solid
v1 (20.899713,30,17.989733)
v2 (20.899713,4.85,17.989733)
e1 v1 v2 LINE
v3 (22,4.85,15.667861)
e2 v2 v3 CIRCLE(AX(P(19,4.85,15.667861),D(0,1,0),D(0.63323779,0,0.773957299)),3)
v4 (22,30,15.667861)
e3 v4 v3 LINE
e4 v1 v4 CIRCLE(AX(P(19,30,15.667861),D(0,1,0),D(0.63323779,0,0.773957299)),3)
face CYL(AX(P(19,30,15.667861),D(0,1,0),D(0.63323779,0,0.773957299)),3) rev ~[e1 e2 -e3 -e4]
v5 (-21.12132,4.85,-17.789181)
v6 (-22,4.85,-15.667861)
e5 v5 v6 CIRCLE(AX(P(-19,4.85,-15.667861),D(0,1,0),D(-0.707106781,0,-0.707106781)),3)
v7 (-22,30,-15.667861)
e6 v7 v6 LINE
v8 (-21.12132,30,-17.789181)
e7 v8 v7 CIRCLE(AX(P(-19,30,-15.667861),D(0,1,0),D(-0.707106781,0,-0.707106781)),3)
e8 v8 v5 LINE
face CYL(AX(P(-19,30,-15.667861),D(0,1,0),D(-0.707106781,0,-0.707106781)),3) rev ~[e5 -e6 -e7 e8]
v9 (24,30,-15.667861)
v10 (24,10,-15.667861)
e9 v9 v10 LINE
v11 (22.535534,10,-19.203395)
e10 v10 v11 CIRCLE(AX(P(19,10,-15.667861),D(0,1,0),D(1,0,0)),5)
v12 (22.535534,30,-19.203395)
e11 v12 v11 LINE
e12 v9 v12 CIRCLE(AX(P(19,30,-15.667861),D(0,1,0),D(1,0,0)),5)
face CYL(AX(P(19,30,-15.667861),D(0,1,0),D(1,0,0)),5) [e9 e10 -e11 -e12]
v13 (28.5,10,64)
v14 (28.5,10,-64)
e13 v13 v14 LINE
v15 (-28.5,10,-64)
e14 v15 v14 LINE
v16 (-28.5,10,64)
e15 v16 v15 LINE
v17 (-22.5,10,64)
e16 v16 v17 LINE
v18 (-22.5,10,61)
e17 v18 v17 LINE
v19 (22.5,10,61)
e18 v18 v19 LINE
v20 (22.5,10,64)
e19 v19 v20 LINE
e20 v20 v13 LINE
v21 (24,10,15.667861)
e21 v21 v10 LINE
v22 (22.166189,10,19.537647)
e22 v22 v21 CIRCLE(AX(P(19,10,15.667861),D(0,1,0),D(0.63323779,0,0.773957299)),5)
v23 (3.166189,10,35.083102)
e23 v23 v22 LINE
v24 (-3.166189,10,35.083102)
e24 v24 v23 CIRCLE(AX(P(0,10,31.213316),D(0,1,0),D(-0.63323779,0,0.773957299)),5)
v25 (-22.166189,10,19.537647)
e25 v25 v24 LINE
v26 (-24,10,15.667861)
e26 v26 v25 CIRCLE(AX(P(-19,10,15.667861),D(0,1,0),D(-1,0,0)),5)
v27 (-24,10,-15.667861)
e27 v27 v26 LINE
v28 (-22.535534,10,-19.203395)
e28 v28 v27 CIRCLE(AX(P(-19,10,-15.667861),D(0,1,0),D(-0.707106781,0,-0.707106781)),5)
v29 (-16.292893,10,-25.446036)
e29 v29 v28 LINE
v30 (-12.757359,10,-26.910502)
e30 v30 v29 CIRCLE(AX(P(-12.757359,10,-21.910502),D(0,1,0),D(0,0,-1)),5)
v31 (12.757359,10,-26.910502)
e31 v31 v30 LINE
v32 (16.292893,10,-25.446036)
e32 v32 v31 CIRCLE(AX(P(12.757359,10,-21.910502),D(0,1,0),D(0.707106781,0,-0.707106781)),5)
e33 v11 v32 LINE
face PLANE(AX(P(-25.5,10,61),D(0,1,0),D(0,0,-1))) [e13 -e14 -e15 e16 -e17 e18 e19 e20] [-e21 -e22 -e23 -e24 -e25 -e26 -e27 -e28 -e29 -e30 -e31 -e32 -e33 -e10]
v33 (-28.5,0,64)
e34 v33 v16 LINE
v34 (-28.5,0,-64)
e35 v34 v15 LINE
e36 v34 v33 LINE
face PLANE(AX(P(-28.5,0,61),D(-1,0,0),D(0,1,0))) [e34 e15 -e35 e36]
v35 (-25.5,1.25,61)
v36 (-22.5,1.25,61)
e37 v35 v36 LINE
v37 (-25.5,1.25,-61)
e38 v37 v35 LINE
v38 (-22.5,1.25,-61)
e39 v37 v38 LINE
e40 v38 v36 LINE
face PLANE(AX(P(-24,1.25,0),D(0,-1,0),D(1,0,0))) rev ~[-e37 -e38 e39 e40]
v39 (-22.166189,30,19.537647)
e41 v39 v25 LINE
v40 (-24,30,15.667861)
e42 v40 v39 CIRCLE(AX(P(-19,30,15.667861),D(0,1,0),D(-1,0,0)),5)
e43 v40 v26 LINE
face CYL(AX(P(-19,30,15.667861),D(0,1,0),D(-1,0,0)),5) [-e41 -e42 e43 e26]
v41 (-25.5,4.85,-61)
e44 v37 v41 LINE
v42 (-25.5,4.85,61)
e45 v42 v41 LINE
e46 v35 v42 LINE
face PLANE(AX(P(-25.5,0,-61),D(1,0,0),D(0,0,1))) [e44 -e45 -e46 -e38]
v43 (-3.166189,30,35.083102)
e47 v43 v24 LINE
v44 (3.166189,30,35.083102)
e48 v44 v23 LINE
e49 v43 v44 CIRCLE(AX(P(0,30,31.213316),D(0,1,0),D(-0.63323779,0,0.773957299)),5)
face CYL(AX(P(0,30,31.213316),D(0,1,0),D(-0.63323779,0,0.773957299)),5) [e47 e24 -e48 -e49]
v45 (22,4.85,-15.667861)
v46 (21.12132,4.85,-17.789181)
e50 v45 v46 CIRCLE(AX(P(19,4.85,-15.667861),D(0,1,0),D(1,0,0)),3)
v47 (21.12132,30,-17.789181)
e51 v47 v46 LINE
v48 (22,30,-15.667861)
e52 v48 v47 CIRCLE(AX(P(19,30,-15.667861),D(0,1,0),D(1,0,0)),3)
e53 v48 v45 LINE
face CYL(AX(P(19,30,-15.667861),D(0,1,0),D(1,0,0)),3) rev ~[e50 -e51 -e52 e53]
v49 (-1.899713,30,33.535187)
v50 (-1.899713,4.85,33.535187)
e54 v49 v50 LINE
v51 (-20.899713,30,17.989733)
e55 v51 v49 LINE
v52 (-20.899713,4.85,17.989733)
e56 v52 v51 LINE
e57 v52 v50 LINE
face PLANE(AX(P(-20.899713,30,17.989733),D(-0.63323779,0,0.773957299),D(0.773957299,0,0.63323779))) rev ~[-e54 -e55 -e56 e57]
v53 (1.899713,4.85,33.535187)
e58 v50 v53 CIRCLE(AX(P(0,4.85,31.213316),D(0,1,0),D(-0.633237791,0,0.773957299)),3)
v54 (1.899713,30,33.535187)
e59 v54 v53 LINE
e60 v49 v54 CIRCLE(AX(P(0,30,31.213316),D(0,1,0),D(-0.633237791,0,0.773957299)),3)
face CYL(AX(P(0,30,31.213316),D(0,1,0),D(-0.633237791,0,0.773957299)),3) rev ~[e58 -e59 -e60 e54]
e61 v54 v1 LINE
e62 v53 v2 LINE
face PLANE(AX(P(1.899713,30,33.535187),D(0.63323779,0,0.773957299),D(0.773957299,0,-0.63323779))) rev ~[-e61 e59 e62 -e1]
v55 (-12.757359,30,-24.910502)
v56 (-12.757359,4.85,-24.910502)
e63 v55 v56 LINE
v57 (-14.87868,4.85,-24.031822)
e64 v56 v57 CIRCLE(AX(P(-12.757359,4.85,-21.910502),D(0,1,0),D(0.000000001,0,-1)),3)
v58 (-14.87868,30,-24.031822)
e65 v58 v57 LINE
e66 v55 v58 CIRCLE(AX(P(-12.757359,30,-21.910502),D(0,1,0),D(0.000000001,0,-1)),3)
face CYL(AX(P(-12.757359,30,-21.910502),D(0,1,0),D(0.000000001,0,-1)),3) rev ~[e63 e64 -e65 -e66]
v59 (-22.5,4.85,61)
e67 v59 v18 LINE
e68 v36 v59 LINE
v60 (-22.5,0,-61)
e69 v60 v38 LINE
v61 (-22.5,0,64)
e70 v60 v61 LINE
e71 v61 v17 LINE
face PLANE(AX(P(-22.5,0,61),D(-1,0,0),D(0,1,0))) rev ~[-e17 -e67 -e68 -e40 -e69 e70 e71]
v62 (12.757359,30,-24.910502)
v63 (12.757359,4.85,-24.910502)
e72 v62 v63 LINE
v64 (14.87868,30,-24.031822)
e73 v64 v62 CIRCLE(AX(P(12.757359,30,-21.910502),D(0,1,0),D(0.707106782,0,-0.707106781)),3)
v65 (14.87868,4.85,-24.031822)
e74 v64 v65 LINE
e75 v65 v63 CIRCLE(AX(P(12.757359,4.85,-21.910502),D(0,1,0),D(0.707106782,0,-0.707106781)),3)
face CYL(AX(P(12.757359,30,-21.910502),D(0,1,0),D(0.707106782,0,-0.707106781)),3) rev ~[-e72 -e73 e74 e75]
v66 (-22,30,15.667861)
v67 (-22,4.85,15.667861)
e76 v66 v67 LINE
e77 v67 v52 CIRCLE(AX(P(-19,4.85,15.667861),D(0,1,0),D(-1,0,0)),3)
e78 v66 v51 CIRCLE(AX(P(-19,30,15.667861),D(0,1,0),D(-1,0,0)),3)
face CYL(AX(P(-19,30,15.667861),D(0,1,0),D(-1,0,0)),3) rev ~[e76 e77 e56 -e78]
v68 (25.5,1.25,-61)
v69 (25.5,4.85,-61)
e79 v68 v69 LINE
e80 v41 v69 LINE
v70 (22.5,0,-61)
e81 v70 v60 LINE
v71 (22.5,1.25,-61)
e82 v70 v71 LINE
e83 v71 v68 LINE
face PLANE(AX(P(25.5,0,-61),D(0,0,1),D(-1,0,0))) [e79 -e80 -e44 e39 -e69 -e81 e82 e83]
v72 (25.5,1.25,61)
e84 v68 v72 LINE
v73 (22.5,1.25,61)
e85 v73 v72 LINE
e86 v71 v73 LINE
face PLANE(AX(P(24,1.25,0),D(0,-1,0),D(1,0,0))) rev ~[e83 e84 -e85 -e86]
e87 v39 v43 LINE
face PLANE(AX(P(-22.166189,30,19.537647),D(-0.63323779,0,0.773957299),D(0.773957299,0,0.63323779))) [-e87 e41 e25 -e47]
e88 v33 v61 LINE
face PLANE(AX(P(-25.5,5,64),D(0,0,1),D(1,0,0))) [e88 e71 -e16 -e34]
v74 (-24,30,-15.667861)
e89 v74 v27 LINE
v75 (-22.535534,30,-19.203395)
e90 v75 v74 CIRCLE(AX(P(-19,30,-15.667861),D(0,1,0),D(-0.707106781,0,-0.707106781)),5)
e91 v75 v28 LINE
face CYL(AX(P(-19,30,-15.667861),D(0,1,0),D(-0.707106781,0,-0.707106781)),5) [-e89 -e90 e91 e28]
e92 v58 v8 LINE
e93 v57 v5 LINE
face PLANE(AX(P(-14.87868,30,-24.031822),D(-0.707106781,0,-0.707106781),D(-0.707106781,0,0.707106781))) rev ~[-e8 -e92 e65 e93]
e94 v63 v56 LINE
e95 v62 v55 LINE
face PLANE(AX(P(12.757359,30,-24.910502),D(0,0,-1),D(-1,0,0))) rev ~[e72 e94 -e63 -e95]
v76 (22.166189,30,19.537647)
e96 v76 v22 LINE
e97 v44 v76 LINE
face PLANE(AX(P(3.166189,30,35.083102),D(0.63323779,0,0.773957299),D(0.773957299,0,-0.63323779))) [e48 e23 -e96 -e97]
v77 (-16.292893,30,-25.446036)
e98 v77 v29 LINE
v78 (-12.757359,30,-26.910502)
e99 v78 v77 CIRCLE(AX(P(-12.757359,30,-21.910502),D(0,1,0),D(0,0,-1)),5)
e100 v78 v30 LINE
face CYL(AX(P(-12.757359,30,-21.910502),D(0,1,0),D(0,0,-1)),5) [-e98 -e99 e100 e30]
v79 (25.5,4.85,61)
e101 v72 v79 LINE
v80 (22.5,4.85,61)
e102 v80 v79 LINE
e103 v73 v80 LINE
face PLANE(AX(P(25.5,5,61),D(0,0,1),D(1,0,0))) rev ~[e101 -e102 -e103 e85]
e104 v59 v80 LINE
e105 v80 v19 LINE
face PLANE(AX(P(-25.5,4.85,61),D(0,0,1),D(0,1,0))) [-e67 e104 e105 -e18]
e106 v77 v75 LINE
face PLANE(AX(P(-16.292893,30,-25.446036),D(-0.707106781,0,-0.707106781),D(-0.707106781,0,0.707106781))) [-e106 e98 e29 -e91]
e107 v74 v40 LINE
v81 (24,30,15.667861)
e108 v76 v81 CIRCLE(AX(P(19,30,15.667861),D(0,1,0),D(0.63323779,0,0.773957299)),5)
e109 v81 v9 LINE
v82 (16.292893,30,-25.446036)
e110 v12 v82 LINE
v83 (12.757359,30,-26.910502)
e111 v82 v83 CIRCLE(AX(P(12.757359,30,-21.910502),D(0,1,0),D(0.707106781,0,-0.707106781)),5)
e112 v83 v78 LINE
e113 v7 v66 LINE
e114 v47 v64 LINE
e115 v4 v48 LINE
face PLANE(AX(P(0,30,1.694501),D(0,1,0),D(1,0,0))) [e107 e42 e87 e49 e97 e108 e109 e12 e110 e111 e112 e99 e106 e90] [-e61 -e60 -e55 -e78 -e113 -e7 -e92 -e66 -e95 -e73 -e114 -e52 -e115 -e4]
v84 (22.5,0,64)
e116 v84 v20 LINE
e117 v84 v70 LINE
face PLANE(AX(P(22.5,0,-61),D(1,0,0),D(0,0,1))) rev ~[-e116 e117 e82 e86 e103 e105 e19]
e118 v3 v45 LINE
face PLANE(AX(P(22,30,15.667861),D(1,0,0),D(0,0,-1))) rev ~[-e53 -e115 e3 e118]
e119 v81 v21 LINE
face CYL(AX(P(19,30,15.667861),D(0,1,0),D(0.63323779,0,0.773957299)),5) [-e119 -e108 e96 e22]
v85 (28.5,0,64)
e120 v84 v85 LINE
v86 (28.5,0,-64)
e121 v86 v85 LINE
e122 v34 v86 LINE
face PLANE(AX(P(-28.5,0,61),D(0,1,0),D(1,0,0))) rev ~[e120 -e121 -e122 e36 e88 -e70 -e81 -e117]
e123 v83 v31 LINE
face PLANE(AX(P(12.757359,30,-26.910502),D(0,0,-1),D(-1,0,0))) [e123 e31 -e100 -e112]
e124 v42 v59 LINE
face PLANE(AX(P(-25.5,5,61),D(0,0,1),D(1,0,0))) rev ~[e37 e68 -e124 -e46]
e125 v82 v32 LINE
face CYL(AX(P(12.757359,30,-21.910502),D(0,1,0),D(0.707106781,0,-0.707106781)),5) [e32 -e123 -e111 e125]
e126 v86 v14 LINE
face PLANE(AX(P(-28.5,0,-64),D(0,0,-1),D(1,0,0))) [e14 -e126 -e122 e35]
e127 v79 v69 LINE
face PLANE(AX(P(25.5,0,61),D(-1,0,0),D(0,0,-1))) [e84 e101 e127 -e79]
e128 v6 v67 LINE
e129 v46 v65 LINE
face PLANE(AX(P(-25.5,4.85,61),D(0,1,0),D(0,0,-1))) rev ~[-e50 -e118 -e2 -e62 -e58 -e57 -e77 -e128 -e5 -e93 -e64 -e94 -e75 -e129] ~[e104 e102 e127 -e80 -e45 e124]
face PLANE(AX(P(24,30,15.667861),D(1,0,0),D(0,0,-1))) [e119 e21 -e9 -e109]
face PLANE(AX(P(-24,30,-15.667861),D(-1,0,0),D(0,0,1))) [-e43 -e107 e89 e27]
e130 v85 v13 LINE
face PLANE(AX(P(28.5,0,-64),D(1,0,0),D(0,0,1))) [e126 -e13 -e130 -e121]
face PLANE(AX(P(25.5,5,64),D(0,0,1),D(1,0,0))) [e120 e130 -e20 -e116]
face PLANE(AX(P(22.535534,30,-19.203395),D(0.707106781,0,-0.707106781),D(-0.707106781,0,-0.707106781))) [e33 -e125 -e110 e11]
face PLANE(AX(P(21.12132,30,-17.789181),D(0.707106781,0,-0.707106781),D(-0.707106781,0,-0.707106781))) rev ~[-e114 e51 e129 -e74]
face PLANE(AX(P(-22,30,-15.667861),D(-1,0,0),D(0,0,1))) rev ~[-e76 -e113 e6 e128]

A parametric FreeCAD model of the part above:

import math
import FreeCAD as App
import Part
import Sketcher
Q = App.Units.Quantity

doc = App.newDocument("Part")
params = doc.addObject("Spreadsheet::Sheet", "Params")
for row, (alias, value) in enumerate([
    ("sketch1_width", "57 mm"),
    ("sketch1_width2", "3 mm"),
    ("sketch1_height", "125 mm"),
    ("sketch1_height2", "122 mm"),
    ("pad1_length", "10 mm"),
    ("sketch2_width", "3 mm"),
    ("sketch2_height", "122 mm"),
    ("pad2_length", "1.25 mm"),
    ("sketch3_width", "6 mm"),
    ("sketch3_height", "10 mm"),
    ("pad3_length", "3 mm"),
    ("sketch4_height", "122 mm"),
    ("sketch4_width", "5.15 mm"),
    ("pad4_length", "52 mm"),
    ("sketch5_radius", "3 mm"),
    ("pocket1_length", "52 mm"),
    ("sketch6_radius", "5 mm"),
    ("sketch6_radius2", "3 mm"),
    ("pad5_length", "20 mm"),
], start=1):
    params.set(f"A{row}", alias)
    params.set(f"B{row}", "=" + value)
    params.setAlias(f"B{row}", alias)

body = doc.addObject("PartDesign::Body", "Body")

# Sketch on XZ plane
sketch1 = doc.addObject("Sketcher::SketchObject", "Sketch")
body.addObject(sketch1)
sketch1.AttachmentSupport = (doc.XZ_Plane, [""])
sketch1.MapMode = "FlatFace"
sketch1.addGeometry(Part.LineSegment(App.Vector(28.5, -64, 0), App.Vector(-28.5, -64, 0)), False)
sketch1.addGeometry(Part.LineSegment(App.Vector(-28.5, -64, 0), App.Vector(-28.5, 61, 0)), False)
sketch1.addGeometry(Part.LineSegment(App.Vector(-28.5, 61, 0), App.Vector(-25.5, 61, 0)), False)
sketch1.addGeometry(Part.LineSegment(App.Vector(-25.5, 61, 0), App.Vector(-25.5, -61, 0)), False)
sketch1.addGeometry(Part.LineSegment(App.Vector(-25.5, -61, 0), App.Vector(25.5, -61, 0)), False)
sketch1.addGeometry(Part.LineSegment(App.Vector(25.5, -61, 0), App.Vector(25.5, 61, 0)), False)
sketch1.addGeometry(Part.LineSegment(App.Vector(25.5, 61, 0), App.Vector(28.5, 61, 0)), False)
sketch1.addGeometry(Part.LineSegment(App.Vector(28.5, 61, 0), App.Vector(28.5, -64, 0)), False)
sketch1.addConstraint(Sketcher.Constraint("Coincident", 0, 2, 1, 1))
sketch1.addConstraint(Sketcher.Constraint("Coincident", 1, 2, 2, 1))
sketch1.addConstraint(Sketcher.Constraint("Coincident", 2, 2, 3, 1))
sketch1.addConstraint(Sketcher.Constraint("Coincident", 3, 2, 4, 1))
sketch1.addConstraint(Sketcher.Constraint("Coincident", 4, 2, 5, 1))
sketch1.addConstraint(Sketcher.Constraint("Coincident", 5, 2, 6, 1))
sketch1.addConstraint(Sketcher.Constraint("Coincident", 6, 2, 7, 1))
sketch1.addConstraint(Sketcher.Constraint("Coincident", 7, 2, 0, 1))
sketch1.addConstraint(Sketcher.Constraint("Horizontal", 0))
sketch1.addConstraint(Sketcher.Constraint("Vertical", 1))
sketch1.addConstraint(Sketcher.Constraint("Horizontal", 2))
sketch1.addConstraint(Sketcher.Constraint("Vertical", 3))
sketch1.addConstraint(Sketcher.Constraint("Horizontal", 4))
sketch1.addConstraint(Sketcher.Constraint("Vertical", 5))
sketch1.addConstraint(Sketcher.Constraint("Horizontal", 6))
sketch1.addConstraint(Sketcher.Constraint("Vertical", 7))
sketch1.addConstraint(Sketcher.Constraint("Symmetric", 2, 2, 4, 2, -1, 1))
sketch1.addConstraint(Sketcher.Constraint("Symmetric", 1, 2, 6, 2, -2))
sketch1.addConstraint(Sketcher.Constraint("DistanceX", 0, 2, 0, 1, Q("57 mm")))
sketch1.addConstraint(Sketcher.Constraint("DistanceX", 2, 1, 2, 2, Q("3 mm")))
sketch1.addConstraint(Sketcher.Constraint("DistanceY", 1, 1, 1, 2, Q("125 mm")))
sketch1.addConstraint(Sketcher.Constraint("DistanceY", 3, 2, 3, 1, Q("122 mm")))
sketch1.setExpression("Constraints[18]", "Params.sketch1_width")
sketch1.setExpression("Constraints[19]", "Params.sketch1_width2")
sketch1.setExpression("Constraints[20]", "Params.sketch1_height")
sketch1.setExpression("Constraints[21]", "Params.sketch1_height2")
pad1 = doc.addObject("PartDesign::Pad", "Pad")
body.addObject(pad1)
pad1.Profile = sketch1
pad1.setExpression("Length", "Params.pad1_length")
pad1.Reversed = True

# Sketch on XZ plane
sketch2 = doc.addObject("Sketcher::SketchObject", "Sketch001")
body.addObject(sketch2)
sketch2.AttachmentSupport = (doc.XZ_Plane, [""])
sketch2.MapMode = "FlatFace"
sketch2.addGeometry(Part.LineSegment(App.Vector(-25.5, 61, 0), App.Vector(-25.5, -61, 0)), False)
sketch2.addGeometry(Part.LineSegment(App.Vector(-25.5, -61, 0), App.Vector(-22.5, -61, 0)), False)
sketch2.addGeometry(Part.LineSegment(App.Vector(-22.5, -61, 0), App.Vector(-22.5, 61, 0)), False)
sketch2.addGeometry(Part.LineSegment(App.Vector(-22.5, 61, 0), App.Vector(-25.5, 61, 0)), False)
sketch2.addGeometry(Part.LineSegment(App.Vector(22.5, 61, 0), App.Vector(22.5, -61, 0)), False)
sketch2.addGeometry(Part.LineSegment(App.Vector(22.5, -61, 0), App.Vector(25.5, -61, 0)), False)
sketch2.addGeometry(Part.LineSegment(App.Vector(25.5, -61, 0), App.Vector(25.5, 61, 0)), False)
sketch2.addGeometry(Part.LineSegment(App.Vector(25.5, 61, 0), App.Vector(22.5, 61, 0)), False)
sketch2.addConstraint(Sketcher.Constraint("Coincident", 0, 2, 1, 1))
sketch2.addConstraint(Sketcher.Constraint("Coincident", 1, 2, 2, 1))
sketch2.addConstraint(Sketcher.Constraint("Coincident", 2, 2, 3, 1))
sketch2.addConstraint(Sketcher.Constraint("Coincident", 3, 2, 0, 1))
sketch2.addConstraint(Sketcher.Constraint("Coincident", 4, 2, 5, 1))
sketch2.addConstraint(Sketcher.Constraint("Coincident", 5, 2, 6, 1))
sketch2.addConstraint(Sketcher.Constraint("Coincident", 6, 2, 7, 1))
sketch2.addConstraint(Sketcher.Constraint("Coincident", 7, 2, 4, 1))
sketch2.addConstraint(Sketcher.Constraint("Vertical", 0))
sketch2.addConstraint(Sketcher.Constraint("Horizontal", 1))
sketch2.addConstraint(Sketcher.Constraint("Vertical", 2))
sketch2.addConstraint(Sketcher.Constraint("Horizontal", 3))
sketch2.addConstraint(Sketcher.Constraint("Vertical", 4))
sketch2.addConstraint(Sketcher.Constraint("Horizontal", 5))
sketch2.addConstraint(Sketcher.Constraint("Vertical", 6))
sketch2.addConstraint(Sketcher.Constraint("Horizontal", 7))
sketch2.addConstraint(Sketcher.Constraint("Symmetric", 2, 2, 4, 2, -1, 1))
sketch2.addConstraint(Sketcher.Constraint("Symmetric", 0, 2, 6, 2, -1, 1))
sketch2.addConstraint(Sketcher.Constraint("Horizontal", 1, 2, 4, 2))
sketch2.addConstraint(Sketcher.Constraint("DistanceX", 1, 1, 1, 2, Q("3 mm")))
sketch2.addConstraint(Sketcher.Constraint("DistanceY", 0, 2, 0, 1, Q("122 mm")))
sketch2.addConstraint(Sketcher.Constraint("DistanceX", 1, 2, 4, 2, Q("45 mm")))
sketch2.setExpression("Constraints[19]", "Params.sketch2_width")
sketch2.setExpression("Constraints[20]", "Params.sketch2_height")
pad2 = doc.addObject("PartDesign::Pad", "Pad001")
body.addObject(pad2)
pad2.Profile = sketch2
pad2.setExpression("Length", "Params.pad2_length")
pad2.Reversed = True

# Sketch on XY plane
sketch3 = doc.addObject("Sketcher::SketchObject", "Sketch002")
body.addObject(sketch3)
sketch3.AttachmentSupport = (doc.XY_Plane, [""])
sketch3.MapMode = "FlatFace"
sketch3.AttachmentOffset = App.Placement(App.Vector(0, 0, 61), App.Rotation())
sketch3.addGeometry(Part.LineSegment(App.Vector(-28, 10, 0), App.Vector(-28, 0, 0)), False)
sketch3.addGeometry(Part.LineSegment(App.Vector(-28, 0, 0), App.Vector(-22, 0, 0)), False)
sketch3.addGeometry(Part.LineSegment(App.Vector(-22, 0, 0), App.Vector(-22, 10, 0)), False)
sketch3.addGeometry(Part.LineSegment(App.Vector(-22, 10, 0), App.Vector(-28, 10, 0)), False)
sketch3.addGeometry(Part.LineSegment(App.Vector(22, 10, 0), App.Vector(22, 0, 0)), False)
sketch3.addGeometry(Part.LineSegment(App.Vector(22, 0, 0), App.Vector(28, 0, 0)), False)
sketch3.addGeometry(Part.LineSegment(App.Vector(28, 0, 0), App.Vector(28, 10, 0)), False)
sketch3.addGeometry(Part.LineSegment(App.Vector(28, 10, 0), App.Vector(22, 10, 0)), False)
sketch3.addConstraint(Sketcher.Constraint("Coincident", 0, 2, 1, 1))
sketch3.addConstraint(Sketcher.Constraint("Coincident", 1, 2, 2, 1))
sketch3.addConstraint(Sketcher.Constraint("Coincident", 2, 2, 3, 1))
sketch3.addConstraint(Sketcher.Constraint("Coincident", 3, 2, 0, 1))
sketch3.addConstraint(Sketcher.Constraint("Coincident", 4, 2, 5, 1))
sketch3.addConstraint(Sketcher.Constraint("Coincident", 5, 2, 6, 1))
sketch3.addConstraint(Sketcher.Constraint("Coincident", 6, 2, 7, 1))
sketch3.addConstraint(Sketcher.Constraint("Coincident", 7, 2, 4, 1))
sketch3.addConstraint(Sketcher.Constraint("Vertical", 0))
sketch3.addConstraint(Sketcher.Constraint("Horizontal", 1))
sketch3.addConstraint(Sketcher.Constraint("Vertical", 2))
sketch3.addConstraint(Sketcher.Constraint("Horizontal", 3))
sketch3.addConstraint(Sketcher.Constraint("Vertical", 4))
sketch3.addConstraint(Sketcher.Constraint("Horizontal", 5))
sketch3.addConstraint(Sketcher.Constraint("Vertical", 6))
sketch3.addConstraint(Sketcher.Constraint("Horizontal", 7))
sketch3.addConstraint(Sketcher.Constraint("Symmetric", 1, 2, 4, 2, -1, 1))
sketch3.addConstraint(Sketcher.Constraint("Symmetric", 0, 2, 5, 2, -2))
sketch3.addConstraint(Sketcher.Constraint("Horizontal", 3, 2, 6, 2))
sketch3.addConstraint(Sketcher.Constraint("DistanceX", 1, 1, 1, 2, Q("6 mm")))
sketch3.addConstraint(Sketcher.Constraint("DistanceY", 0, 2, 0, 1, Q("10 mm")))
sketch3.addConstraint(Sketcher.Constraint("DistanceX", 1, 2, 4, 2, Q("45 mm")))
sketch3.setExpression("Constraints[19]", "Params.sketch3_width")
sketch3.setExpression("Constraints[20]", "Params.sketch3_height")
pad3 = doc.addObject("PartDesign::Pad", "Pad002")
body.addObject(pad3)
pad3.Profile = sketch3
pad3.setExpression("Length", "Params.pad3_length")

# Sketch on YZ plane
sketch4 = doc.addObject("Sketcher::SketchObject", "Sketch003")
body.addObject(sketch4)
sketch4.AttachmentSupport = (doc.YZ_Plane, [""])
sketch4.MapMode = "FlatFace"
sketch4.AttachmentOffset = App.Placement(App.Vector(0, 0, -25.5), App.Rotation())
sketch4.addGeometry(Part.LineSegment(App.Vector(10, 61, 0), App.Vector(5, 61, 0)), False)
sketch4.addGeometry(Part.LineSegment(App.Vector(5, 61, 0), App.Vector(5, -61, 0)), False)
sketch4.addGeometry(Part.LineSegment(App.Vector(5, -61, 0), App.Vector(10, -61, 0)), False)
sketch4.addGeometry(Part.LineSegment(App.Vector(10, -61, 0), App.Vector(10, 61, 0)), False)
sketch4.addConstraint(Sketcher.Constraint("Coincident", 0, 2, 1, 1))
sketch4.addConstraint(Sketcher.Constraint("Coincident", 1, 2, 2, 1))
sketch4.addConstraint(Sketcher.Constraint("Coincident", 2, 2, 3, 1))
sketch4.addConstraint(Sketcher.Constraint("Coincident", 3, 2, 0, 1))
sketch4.addConstraint(Sketcher.Constraint("Horizontal", 0))
sketch4.addConstraint(Sketcher.Constraint("Vertical", 1))
sketch4.addConstraint(Sketcher.Constraint("Horizontal", 2))
sketch4.addConstraint(Sketcher.Constraint("Vertical", 3))
sketch4.addConstraint(Sketcher.Constraint("DistanceY", 1, 2, 1, 1, Q("122 mm")))
sketch4.addConstraint(Sketcher.Constraint("DistanceY", -1, 1, 0, 2, Q("61 mm")))
sketch4.addConstraint(Sketcher.Constraint("DistanceX", -1, 1, 2, 2, Q("10 mm")))
sketch4.addConstraint(Sketcher.Constraint("DistanceX", 0, 2, 0, 1, Q("5.15 mm")))
sketch4.setExpression("Constraints[8]", "Params.sketch4_height")
sketch4.setExpression("Constraints[11]", "Params.sketch4_width")
pad4 = doc.addObject("PartDesign::Pad", "Pad003")
body.addObject(pad4)
pad4.Profile = sketch4
pad4.setExpression("Length", "Params.pad4_length")

# Sketch on XZ plane
sketch5 = doc.addObject("Sketcher::SketchObject", "Sketch004")
body.addObject(sketch5)
sketch5.AttachmentSupport = (doc.XZ_Plane, [""])
sketch5.MapMode = "FlatFace"
sketch5.AttachmentOffset = App.Placement(App.Vector(0, 0, -10), App.Rotation())
sketch5.addGeometry(Part.LineSegment(App.Vector(-22, -15.7, 0), App.Vector(-22, 15.7, 0)), False)
sketch5.addGeometry(Part.ArcOfCircle(Part.Circle(App.Vector(-19, 15.7, 0), App.Vector(0, 0, 1), 3), math.radians(129), math.radians(180)), False)
sketch5.addGeometry(Part.LineSegment(App.Vector(-20.9, 18, 0), App.Vector(-1.9, 33.5, 0)), False)
sketch5.addGeometry(Part.ArcOfCircle(Part.Circle(App.Vector(0, 31.2, 0), App.Vector(0, 0, 1), 3), math.radians(51), math.radians(129)), False)
sketch5.addGeometry(Part.LineSegment(App.Vector(1.9, 33.5, 0), App.Vector(20.9, 18, 0)), False)
sketch5.addGeometry(Part.ArcOfCircle(Part.Circle(App.Vector(19, 15.7, 0), App.Vector(0, 0, 1), 3), math.radians(0), math.radians(51)), False)
sketch5.addGeometry(Part.LineSegment(App.Vector(22, 15.7, 0), App.Vector(22, -15.7, 0)), False)
sketch5.addGeometry(Part.ArcOfCircle(Part.Circle(App.Vector(19, -15.7, 0), App.Vector(0, 0, 1), 3), math.radians(-45), math.radians(0)), False)
sketch5.addGeometry(Part.LineSegment(App.Vector(21.1, -17.8, 0), App.Vector(14.9, -24, 0)), False)
sketch5.addGeometry(Part.ArcOfCircle(Part.Circle(App.Vector(12.8, -21.9, 0), App.Vector(0, 0, 1), 3), math.radians(-90), math.radians(-45)), False)
sketch5.addGeometry(Part.LineSegment(App.Vector(12.8, -24.9, 0), App.Vector(-12.8, -24.9, 0)), False)
sketch5.addGeometry(Part.ArcOfCircle(Part.Circle(App.Vector(-12.8, -21.9, 0), App.Vector(0, 0, 1), 3), math.radians(-135), math.radians(-90)), False)
sketch5.addGeometry(Part.LineSegment(App.Vector(-14.9, -24, 0), App.Vector(-21.1, -17.8, 0)), False)
sketch5.addGeometry(Part.ArcOfCircle(Part.Circle(App.Vector(-19, -15.7, 0), App.Vector(0, 0, 1), 3), math.radians(180), math.radians(225)), False)
sketch5.addConstraint(Sketcher.Constraint("Tangent", 0, 2, 1, 2))
sketch5.addConstraint(Sketcher.Constraint("Tangent", 1, 1, 2, 1))
sketch5.addConstraint(Sketcher.Constraint("Tangent", 2, 2, 3, 2))
sketch5.addConstraint(Sketcher.Constraint("Tangent", 3, 1, 4, 1))
sketch5.addConstraint(Sketcher.Constraint("Tangent", 4, 2, 5, 2))
sketch5.addConstraint(Sketcher.Constraint("Tangent", 5, 1, 6, 1))
sketch5.addConstraint(Sketcher.Constraint("Tangent", 6, 2, 7, 2))
sketch5.addConstraint(Sketcher.Constraint("Tangent", 7, 1, 8, 1))
sketch5.addConstraint(Sketcher.Constraint("Tangent", 8, 2, 9, 2))
sketch5.addConstraint(Sketcher.Constraint("Tangent", 9, 1, 10, 1))
sketch5.addConstraint(Sketcher.Constraint("Tangent", 10, 2, 11, 2))
sketch5.addConstraint(Sketcher.Constraint("Tangent", 11, 1, 12, 1))
sketch5.addConstraint(Sketcher.Constraint("Tangent", 12, 2, 13, 2))
sketch5.addConstraint(Sketcher.Constraint("Tangent", 13, 1, 0, 1))
sketch5.addConstraint(Sketcher.Constraint("Vertical", 0))
sketch5.addConstraint(Sketcher.Constraint("Vertical", 6))
sketch5.addConstraint(Sketcher.Constraint("Horizontal", 10))
sketch5.addConstraint(Sketcher.Constraint("Equal", 1, 3))
sketch5.addConstraint(Sketcher.Constraint("Equal", 3, 5))
sketch5.addConstraint(Sketcher.Constraint("Equal", 5, 7))
sketch5.addConstraint(Sketcher.Constraint("Equal", 7, 9))
sketch5.addConstraint(Sketcher.Constraint("Equal", 9, 11))
sketch5.addConstraint(Sketcher.Constraint("Equal", 11, 13))
sketch5.addConstraint(Sketcher.Constraint("Symmetric", 1, 3, 7, 3, -1, 1))
sketch5.addConstraint(Sketcher.Constraint("Symmetric", 2, 2, 3, 1, -2))
sketch5.addConstraint(Sketcher.Constraint("Symmetric", 8, 2, 11, 1, -2))
sketch5.addConstraint(Sketcher.Constraint("Perpendicular", 8, 12))
sketch5.addConstraint(Sketcher.Constraint("Radius", 1, Q("3 mm")))
sketch5.addConstraint(Sketcher.Constraint("DistanceX", 1, 3, -1, 1, Q("19 mm")))
sketch5.addConstraint(Sketcher.Constraint("DistanceX", 10, 2, 10, 1, Q("25.514719 mm")))
sketch5.addConstraint(Sketcher.Constraint("DistanceY", 0, 1, 0, 2, Q("31.335722 mm")))
sketch5.addConstraint(Sketcher.Constraint("DistanceY", 0, 2, 1, 1, Q("2.321872 mm")))
sketch5.setExpression("Constraints[27]", "Params.sketch5_radius")
pocket1 = doc.addObject("PartDesign::Pocket", "Pocket")
body.addObject(pocket1)
pocket1.Profile = sketch5
pocket1.setExpression("Length", "Params.pocket1_length")
pocket1.Reversed = True

# Sketch on XZ plane
sketch6 = doc.addObject("Sketcher::SketchObject", "Sketch005")
body.addObject(sketch6)
sketch6.AttachmentSupport = (doc.XZ_Plane, [""])
sketch6.MapMode = "FlatFace"
sketch6.AttachmentOffset = App.Placement(App.Vector(0, 0, -30), App.Rotation())
sketch6.addGeometry(Part.LineSegment(App.Vector(-22.2, 19.5, 0), App.Vector(-3.2, 35.1, 0)), False)
sketch6.addGeometry(Part.ArcOfCircle(Part.Circle(App.Vector(0, 31.2, 0), App.Vector(0, 0, 1), 5), math.radians(51), math.radians(129)), False)
sketch6.addGeometry(Part.LineSegment(App.Vector(3.2, 35.1, 0), App.Vector(22.2, 19.5, 0)), False)
sketch6.addGeometry(Part.ArcOfCircle(Part.Circle(App.Vector(19, 15.7, 0), App.Vector(0, 0, 1), 5), math.radians(0), math.radians(51)), False)
sketch6.addGeometry(Part.LineSegment(App.Vector(24, 15.7, 0), App.Vector(24, -15.7, 0)), False)
sketch6.addGeometry(Part.ArcOfCircle(Part.Circle(App.Vector(19, -15.7, 0), App.Vector(0, 0, 1), 5), math.radians(-45), math.radians(0)), False)
sketch6.addGeometry(Part.LineSegment(App.Vector(22.5, -19.2, 0), App.Vector(16.3, -25.4, 0)), False)
sketch6.addGeometry(Part.ArcOfCircle(Part.Circle(App.Vector(12.8, -21.9, 0), App.Vector(0, 0, 1), 5), math.radians(-90), math.radians(-45)), False)
sketch6.addGeometry(Part.LineSegment(App.Vector(12.8, -26.9, 0), App.Vector(-12.8, -26.9, 0)), False)
sketch6.addGeometry(Part.ArcOfCircle(Part.Circle(App.Vector(-12.8, -21.9, 0), App.Vector(0, 0, 1), 5), math.radians(-135), math.radians(-90)), False)
sketch6.addGeometry(Part.LineSegment(App.Vector(-16.3, -25.4, 0), App.Vector(-22.5, -19.2, 0)), False)
sketch6.addGeometry(Part.ArcOfCircle(Part.Circle(App.Vector(-19, -15.7, 0), App.Vector(0, 0, 1), 5), math.radians(180), math.radians(225)), False)
sketch6.addGeometry(Part.LineSegment(App.Vector(-24, -15.7, 0), App.Vector(-24, 15.7, 0)), False)
sketch6.addGeometry(Part.ArcOfCircle(Part.Circle(App.Vector(-19, 15.7, 0), App.Vector(0, 0, 1), 5), math.radians(129), math.radians(180)), False)
sketch6.addGeometry(Part.LineSegment(App.Vector(-1.9, 33.5, 0), App.Vector(-20.9, 18, 0)), False)
sketch6.addGeometry(Part.ArcOfCircle(Part.Circle(App.Vector(-19, 15.7, 0), App.Vector(0, 0, 1), 3), math.radians(129), math.radians(180)), False)
sketch6.addGeometry(Part.LineSegment(App.Vector(-22, 15.7, 0), App.Vector(-22, -15.7, 0)), False)
sketch6.addGeometry(Part.ArcOfCircle(Part.Circle(App.Vector(-19, -15.7, 0), App.Vector(0, 0, 1), 3), math.radians(180), math.radians(225)), False)
sketch6.addGeometry(Part.LineSegment(App.Vector(-21.1, -17.8, 0), App.Vector(-14.9, -24, 0)), False)
sketch6.addGeometry(Part.ArcOfCircle(Part.Circle(App.Vector(-12.8, -21.9, 0), App.Vector(0, 0, 1), 3), math.radians(-135), math.radians(-90)), False)
sketch6.addGeometry(Part.LineSegment(App.Vector(-12.8, -24.9, 0), App.Vector(12.8, -24.9, 0)), False)
sketch6.addGeometry(Part.ArcOfCircle(Part.Circle(App.Vector(12.8, -21.9, 0), App.Vector(0, 0, 1), 3), math.radians(-90), math.radians(-45)), False)
sketch6.addGeometry(Part.LineSegment(App.Vector(14.9, -24, 0), App.Vector(21.1, -17.8, 0)), False)
sketch6.addGeometry(Part.ArcOfCircle(Part.Circle(App.Vector(19, -15.7, 0), App.Vector(0, 0, 1), 3), math.radians(-45), math.radians(0)), False)
sketch6.addGeometry(Part.LineSegment(App.Vector(22, -15.7, 0), App.Vector(22, 15.7, 0)), False)
sketch6.addGeometry(Part.ArcOfCircle(Part.Circle(App.Vector(19, 15.7, 0), App.Vector(0, 0, 1), 3), math.radians(0), math.radians(51)), False)
sketch6.addGeometry(Part.LineSegment(App.Vector(20.9, 18, 0), App.Vector(1.9, 33.5, 0)), False)
sketch6.addGeometry(Part.ArcOfCircle(Part.Circle(App.Vector(0, 31.2, 0), App.Vector(0, 0, 1), 3), math.radians(51), math.radians(129)), False)
sketch6.addConstraint(Sketcher.Constraint("Tangent", 0, 2, 1, 2))
sketch6.addConstraint(Sketcher.Constraint("Tangent", 1, 1, 2, 1))
sketch6.addConstraint(Sketcher.Constraint("Tangent", 2, 2, 3, 2))
sketch6.addConstraint(Sketcher.Constraint("Tangent", 3, 1, 4, 1))
sketch6.addConstraint(Sketcher.Constraint("Tangent", 4, 2, 5, 2))
sketch6.addConstraint(Sketcher.Constraint("Tangent", 5, 1, 6, 1))
sketch6.addConstraint(Sketcher.Constraint("Tangent", 6, 2, 7, 2))
sketch6.addConstraint(Sketcher.Constraint("Tangent", 7, 1, 8, 1))
sketch6.addConstraint(Sketcher.Constraint("Tangent", 8, 2, 9, 2))
sketch6.addConstraint(Sketcher.Constraint("Tangent", 9, 1, 10, 1))
sketch6.addConstraint(Sketcher.Constraint("Tangent", 10, 2, 11, 2))
sketch6.addConstraint(Sketcher.Constraint("Tangent", 11, 1, 12, 1))
sketch6.addConstraint(Sketcher.Constraint("Tangent", 12, 2, 13, 2))
sketch6.addConstraint(Sketcher.Constraint("Tangent", 13, 1, 0, 1))
sketch6.addConstraint(Sketcher.Constraint("Tangent", 14, 2, 15, 1))
sketch6.addConstraint(Sketcher.Constraint("Tangent", 15, 2, 16, 1))
sketch6.addConstraint(Sketcher.Constraint("Tangent", 16, 2, 17, 1))
sketch6.addConstraint(Sketcher.Constraint("Tangent", 17, 2, 18, 1))
sketch6.addConstraint(Sketcher.Constraint("Tangent", 18, 2, 19, 1))
sketch6.addConstraint(Sketcher.Constraint("Tangent", 19, 2, 20, 1))
sketch6.addConstraint(Sketcher.Constraint("Tangent", 20, 2, 21, 1))
sketch6.addConstraint(Sketcher.Constraint("Tangent", 21, 2, 22, 1))
sketch6.addConstraint(Sketcher.Constraint("Tangent", 22, 2, 23, 1))
sketch6.addConstraint(Sketcher.Constraint("Tangent", 23, 2, 24, 1))
sketch6.addConstraint(Sketcher.Constraint("Tangent", 24, 2, 25, 1))
sketch6.addConstraint(Sketcher.Constraint("Tangent", 25, 2, 26, 1))
sketch6.addConstraint(Sketcher.Constraint("Tangent", 26, 2, 27, 1))
sketch6.addConstraint(Sketcher.Constraint("Tangent", 27, 2, 14, 1))
sketch6.addConstraint(Sketcher.Constraint("Vertical", 4))
sketch6.addConstraint(Sketcher.Constraint("Horizontal", 8))
sketch6.addConstraint(Sketcher.Constraint("Vertical", 12))
sketch6.addConstraint(Sketcher.Constraint("Vertical", 16))
sketch6.addConstraint(Sketcher.Constraint("Horizontal", 20))
sketch6.addConstraint(Sketcher.Constraint("Vertical", 24))
sketch6.addConstraint(Sketcher.Constraint("Coincident", 15, 3, 13, 3))
sketch6.addConstraint(Sketcher.Constraint("Coincident", 17, 3, 11, 3))
sketch6.addConstraint(Sketcher.Constraint("Coincident", 19, 3, 9, 3))
sketch6.addConstraint(Sketcher.Constraint("Coincident", 21, 3, 7, 3))
sketch6.addConstraint(Sketcher.Constraint("Coincident", 23, 3, 5, 3))
sketch6.addConstraint(Sketcher.Constraint("Coincident", 25, 3, 3, 3))
sketch6.addConstraint(Sketcher.Constraint("Coincident", 27, 3, 1, 3))
sketch6.addConstraint(Sketcher.Constraint("Equal", 1, 3))
sketch6.addConstraint(Sketcher.Constraint("Equal", 3, 5))
sketch6.addConstraint(Sketcher.Constraint("Equal", 5, 7))
sketch6.addConstraint(Sketcher.Constraint("Equal", 7, 9))
sketch6.addConstraint(Sketcher.Constraint("Equal", 9, 11))
sketch6.addConstraint(Sketcher.Constraint("Equal", 11, 13))
sketch6.addConstraint(Sketcher.Constraint("Equal", 17, 19))
sketch6.addConstraint(Sketcher.Constraint("Equal", 21, 23))
sketch6.addConstraint(Sketcher.Constraint("Equal", 25, 27))
sketch6.addConstraint(Sketcher.Constraint("Symmetric", 3, 3, 11, 3, -1, 1))
sketch6.addConstraint(Sketcher.Constraint("Symmetric", 0, 2, 1, 1, -2))
sketch6.addConstraint(Sketcher.Constraint("Symmetric", 6, 2, 9, 1, -2))
sketch6.addConstraint(Sketcher.Constraint("Perpendicular", 6, 10))
sketch6.addConstraint(Sketcher.Constraint("Radius", 1, Q("5 mm")))
sketch6.addConstraint(Sketcher.Constraint("Radius", 15, Q("3 mm")))
sketch6.addConstraint(Sketcher.Constraint("DistanceX", -1, 1, 3, 3, Q("19 mm")))
sketch6.addConstraint(Sketcher.Constraint("DistanceX", 8, 2, 8, 1, Q("25.514719 mm")))
sketch6.addConstraint(Sketcher.Constraint("DistanceY", 4, 2, 4, 1, Q("31.335722 mm")))
sketch6.addConstraint(Sketcher.Constraint("DistanceX", 0, 2, -1, 1, Q("3.166189 mm")))
sketch6.setExpression("Constraints[54]", "Params.sketch6_radius")
sketch6.setExpression("Constraints[55]", "Params.sketch6_radius2")
pad5 = doc.addObject("PartDesign::Pad", "Pad004")
body.addObject(pad5)
pad5.Profile = sketch6
pad5.setExpression("Length", "Params.pad5_length")

doc.recompute()
